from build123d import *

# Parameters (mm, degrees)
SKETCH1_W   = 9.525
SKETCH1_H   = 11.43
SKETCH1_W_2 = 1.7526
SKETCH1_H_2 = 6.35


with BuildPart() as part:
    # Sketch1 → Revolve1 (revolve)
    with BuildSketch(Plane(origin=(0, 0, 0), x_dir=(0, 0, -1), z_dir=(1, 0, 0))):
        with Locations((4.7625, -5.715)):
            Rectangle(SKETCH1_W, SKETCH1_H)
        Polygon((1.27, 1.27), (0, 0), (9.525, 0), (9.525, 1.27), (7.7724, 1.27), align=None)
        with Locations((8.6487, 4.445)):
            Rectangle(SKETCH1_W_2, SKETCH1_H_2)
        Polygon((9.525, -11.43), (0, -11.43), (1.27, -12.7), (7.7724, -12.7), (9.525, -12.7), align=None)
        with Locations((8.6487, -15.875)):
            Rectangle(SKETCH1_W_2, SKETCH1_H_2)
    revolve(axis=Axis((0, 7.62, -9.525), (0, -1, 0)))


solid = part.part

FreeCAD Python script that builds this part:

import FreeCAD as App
import Part
import Sketcher
Q = App.Units.Quantity


def add_polygon(sketch, points):
    """Adds a closed chain of lines whose ends are joined by coincident constraints."""
    first, n = sketch.GeometryCount, len(points)
    for a, b in zip(points, points[1:] + points[:1]):
        sketch.addGeometry(Part.LineSegment(App.Vector(*a, 0), App.Vector(*b, 0)), False)
    for i in range(n):
        sketch.addConstraint(Sketcher.Constraint("Coincident", first + i, 2, first + (i + 1) % n, 1))

doc = App.newDocument("Part")
params = doc.addObject("Spreadsheet::Sheet", "Params")
for row, (alias, value) in enumerate([
    ("sketch1_width", "0.45 in"),
    ("sketch1_width2", "0.25 in"),
    ("sketch1_width3", "1.05 in"),
    ("sketch1_height", "0.256 in"),
    ("sketch1_height2", "0.069 in"),
    ("revolution_angle", "360 deg"),
], start=1):
    params.set(f"A{row}", alias)
    params.set(f"B{row}", "=" + value)
    params.setAlias(f"B{row}", alias)

body = doc.addObject("PartDesign::Body", "Body")

sketch1 = body.newObject("Sketcher::SketchObject", "Sketch")
sketch1.AttachmentSupport = (doc.getObject("YZ_Plane"), [""])
sketch1.MapMode = "FlatFace"
add_polygon(sketch1, [(0, 0), (-11.43, 0), (-12.7, -1.27), (-12.7, -7.7724), (-19.05, -7.7724), (-19.05, -9.525), (7.62, -9.525), (7.62, -7.7724), (1.27, -7.7724), (1.27, -1.27)])
sketch1.addGeometry(Part.LineSegment(App.Vector(7.62, -9.525, 0), App.Vector(-19.05, -9.525, 0)), True)
sketch1.addConstraint([
    Sketcher.Constraint("Horizontal", 0),
    Sketcher.Constraint("Vertical", 2),
    Sketcher.Constraint("Horizontal", 3),
    Sketcher.Constraint("Vertical", 4),
    Sketcher.Constraint("Horizontal", 5),
    Sketcher.Constraint("Vertical", 6),
    Sketcher.Constraint("Horizontal", 7),
    Sketcher.Constraint("Vertical", 8),
    Sketcher.Constraint("Horizontal", 10),
    Sketcher.Constraint("Coincident", 9, 2, -1, 1),
    Sketcher.Constraint("Coincident", 10, 1, 5, 2),
    Sketcher.Constraint("Perpendicular", 1, 9),
    Sketcher.Constraint("Horizontal", 3, 2, 6, 2),
    Sketcher.Constraint("Horizontal", 1, 2, 8, 2),
    Sketcher.Constraint("Vertical", 3, 2, 10, 2),
    Sketcher.Constraint("Equal", 3, 7),
    Sketcher.Constraint("Equal", 1, 9),
    Sketcher.Constraint("DistanceX", 0, 2, 0, 1, Q("0.45 in")),
    Sketcher.Constraint("DistanceX", 3, 2, 3, 1, Q("0.25 in")),
    Sketcher.Constraint("DistanceX", 5, 1, 5, 2, Q("1.05 in")),
    Sketcher.Constraint("DistanceY", 2, 2, 2, 1, Q("0.256 in")),
    Sketcher.Constraint("DistanceY", 4, 2, 4, 1, Q("0.069 in")),
])
sketch1.setExpression("Constraints[27]", "Params.sketch1_width")
sketch1.setExpression("Constraints[28]", "Params.sketch1_width2")
sketch1.setExpression("Constraints[29]", "Params.sketch1_width3")
sketch1.setExpression("Constraints[30]", "Params.sketch1_height")
sketch1.setExpression("Constraints[31]", "Params.sketch1_height2")
revolution = body.newObject("PartDesign::Revolution", "Revolution")
revolution.Profile = sketch1
revolution.ReferenceAxis = (sketch1, ["Axis0"])
revolution.setExpression("Angle", "Params.revolution_angle")

doc.recompute()
